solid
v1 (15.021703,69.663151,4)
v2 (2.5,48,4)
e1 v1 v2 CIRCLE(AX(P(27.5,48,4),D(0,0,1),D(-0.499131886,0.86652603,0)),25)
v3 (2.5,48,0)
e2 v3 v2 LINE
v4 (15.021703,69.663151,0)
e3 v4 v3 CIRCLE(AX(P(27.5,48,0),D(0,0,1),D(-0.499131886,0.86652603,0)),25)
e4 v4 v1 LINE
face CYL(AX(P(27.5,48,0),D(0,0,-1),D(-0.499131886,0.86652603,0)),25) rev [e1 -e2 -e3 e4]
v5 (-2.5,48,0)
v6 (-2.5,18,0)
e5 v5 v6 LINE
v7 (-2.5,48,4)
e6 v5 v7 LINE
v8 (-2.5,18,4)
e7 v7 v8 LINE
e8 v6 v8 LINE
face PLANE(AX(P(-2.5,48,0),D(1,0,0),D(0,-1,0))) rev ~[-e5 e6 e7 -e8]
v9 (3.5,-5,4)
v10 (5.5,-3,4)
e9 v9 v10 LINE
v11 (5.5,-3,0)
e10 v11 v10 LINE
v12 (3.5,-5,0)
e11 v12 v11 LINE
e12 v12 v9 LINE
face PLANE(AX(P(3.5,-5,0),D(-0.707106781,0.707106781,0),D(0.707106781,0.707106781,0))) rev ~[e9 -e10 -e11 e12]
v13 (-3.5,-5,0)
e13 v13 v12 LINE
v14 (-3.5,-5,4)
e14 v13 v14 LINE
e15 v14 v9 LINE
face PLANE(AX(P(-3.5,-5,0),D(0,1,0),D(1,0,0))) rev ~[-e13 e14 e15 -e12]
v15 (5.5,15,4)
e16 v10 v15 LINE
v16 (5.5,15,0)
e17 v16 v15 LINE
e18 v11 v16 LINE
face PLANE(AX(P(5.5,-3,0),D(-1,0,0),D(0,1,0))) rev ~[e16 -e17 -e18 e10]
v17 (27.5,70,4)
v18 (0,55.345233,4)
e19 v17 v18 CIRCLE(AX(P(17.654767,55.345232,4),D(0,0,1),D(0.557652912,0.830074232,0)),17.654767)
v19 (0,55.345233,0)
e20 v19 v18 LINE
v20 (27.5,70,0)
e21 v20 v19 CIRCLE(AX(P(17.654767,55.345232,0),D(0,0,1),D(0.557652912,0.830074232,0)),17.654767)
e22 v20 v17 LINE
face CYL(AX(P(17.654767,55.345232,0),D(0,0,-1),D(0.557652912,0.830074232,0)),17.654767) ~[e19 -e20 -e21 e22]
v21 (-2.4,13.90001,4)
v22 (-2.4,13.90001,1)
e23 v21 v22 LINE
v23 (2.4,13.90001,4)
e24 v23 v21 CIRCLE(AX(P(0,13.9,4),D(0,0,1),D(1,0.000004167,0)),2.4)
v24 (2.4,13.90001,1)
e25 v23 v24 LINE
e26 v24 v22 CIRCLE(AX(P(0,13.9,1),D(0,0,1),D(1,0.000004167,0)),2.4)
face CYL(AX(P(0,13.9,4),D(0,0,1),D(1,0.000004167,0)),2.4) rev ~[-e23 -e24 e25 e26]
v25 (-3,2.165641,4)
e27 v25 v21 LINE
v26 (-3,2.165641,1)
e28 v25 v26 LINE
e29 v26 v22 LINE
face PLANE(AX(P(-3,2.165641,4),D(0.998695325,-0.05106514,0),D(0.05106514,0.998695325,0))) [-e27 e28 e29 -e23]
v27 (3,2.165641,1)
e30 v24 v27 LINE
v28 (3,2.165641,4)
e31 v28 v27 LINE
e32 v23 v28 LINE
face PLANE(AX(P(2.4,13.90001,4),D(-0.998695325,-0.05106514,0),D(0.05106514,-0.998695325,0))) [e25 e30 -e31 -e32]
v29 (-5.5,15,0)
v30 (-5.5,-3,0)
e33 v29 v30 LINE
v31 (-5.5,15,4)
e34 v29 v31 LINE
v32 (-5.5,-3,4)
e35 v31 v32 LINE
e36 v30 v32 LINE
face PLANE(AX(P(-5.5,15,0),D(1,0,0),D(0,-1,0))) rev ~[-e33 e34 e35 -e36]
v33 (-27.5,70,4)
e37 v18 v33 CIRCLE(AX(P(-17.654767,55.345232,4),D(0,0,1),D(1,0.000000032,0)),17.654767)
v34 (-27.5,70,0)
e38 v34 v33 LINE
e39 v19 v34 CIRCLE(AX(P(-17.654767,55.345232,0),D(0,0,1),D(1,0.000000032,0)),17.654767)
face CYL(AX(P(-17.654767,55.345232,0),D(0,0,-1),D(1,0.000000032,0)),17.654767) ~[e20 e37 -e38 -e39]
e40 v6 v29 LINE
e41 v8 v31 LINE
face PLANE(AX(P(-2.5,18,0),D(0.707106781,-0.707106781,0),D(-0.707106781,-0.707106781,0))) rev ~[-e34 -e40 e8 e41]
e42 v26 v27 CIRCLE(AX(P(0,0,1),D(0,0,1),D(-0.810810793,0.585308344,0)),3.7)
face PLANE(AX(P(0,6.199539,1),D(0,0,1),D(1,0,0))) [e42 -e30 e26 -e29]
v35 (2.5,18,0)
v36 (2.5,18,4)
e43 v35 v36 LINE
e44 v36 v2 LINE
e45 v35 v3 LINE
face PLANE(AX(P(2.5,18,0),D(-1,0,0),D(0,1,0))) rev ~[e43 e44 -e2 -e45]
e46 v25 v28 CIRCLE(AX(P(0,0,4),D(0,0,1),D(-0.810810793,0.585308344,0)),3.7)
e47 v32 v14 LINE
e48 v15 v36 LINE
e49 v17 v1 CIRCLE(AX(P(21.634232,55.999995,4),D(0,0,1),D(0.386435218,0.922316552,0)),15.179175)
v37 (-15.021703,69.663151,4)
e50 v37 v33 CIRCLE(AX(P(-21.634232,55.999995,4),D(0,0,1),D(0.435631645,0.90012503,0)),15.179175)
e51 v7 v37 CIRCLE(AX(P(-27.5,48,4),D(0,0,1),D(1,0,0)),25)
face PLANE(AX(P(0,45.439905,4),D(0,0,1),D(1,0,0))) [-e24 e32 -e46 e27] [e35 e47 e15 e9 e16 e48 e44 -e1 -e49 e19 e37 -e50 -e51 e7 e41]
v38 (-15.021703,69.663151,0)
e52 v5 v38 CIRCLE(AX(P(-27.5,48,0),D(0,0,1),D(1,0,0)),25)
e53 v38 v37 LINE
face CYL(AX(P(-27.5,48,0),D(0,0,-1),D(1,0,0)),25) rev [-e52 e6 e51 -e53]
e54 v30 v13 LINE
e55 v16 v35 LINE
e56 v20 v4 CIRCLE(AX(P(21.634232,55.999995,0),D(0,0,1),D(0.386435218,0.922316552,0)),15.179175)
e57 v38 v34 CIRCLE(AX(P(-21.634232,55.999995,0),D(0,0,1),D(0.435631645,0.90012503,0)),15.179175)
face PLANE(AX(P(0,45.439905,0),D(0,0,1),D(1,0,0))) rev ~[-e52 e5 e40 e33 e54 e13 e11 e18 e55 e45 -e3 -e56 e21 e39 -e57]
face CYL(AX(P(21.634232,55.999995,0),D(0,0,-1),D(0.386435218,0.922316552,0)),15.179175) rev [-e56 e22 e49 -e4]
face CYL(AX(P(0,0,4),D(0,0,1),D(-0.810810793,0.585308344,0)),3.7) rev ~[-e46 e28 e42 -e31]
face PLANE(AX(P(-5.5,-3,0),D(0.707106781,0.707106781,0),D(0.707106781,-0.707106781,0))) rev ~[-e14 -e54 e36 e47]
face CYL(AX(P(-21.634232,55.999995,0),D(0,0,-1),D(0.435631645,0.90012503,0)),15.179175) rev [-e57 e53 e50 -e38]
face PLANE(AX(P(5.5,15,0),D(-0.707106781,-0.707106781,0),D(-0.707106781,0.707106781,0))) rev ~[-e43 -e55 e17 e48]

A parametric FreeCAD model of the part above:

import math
import FreeCAD as App
import Part
import Sketcher

V = App.Vector

doc = App.newDocument("Part")
body = doc.addObject("PartDesign::Body", "Body")

sketch1 = doc.addObject("Sketcher::SketchObject", "Sketch")
body.addObject(sketch1)
sketch1.AttachmentSupport = (doc.XY_Plane, [""])
sketch1.MapMode = "FlatFace"
sketch1.addGeometry([
    Part.LineSegment(V(2.5, 18, 0), V(2.5, 48, 0)),
    Part.ArcOfCircle(Part.Circle(V(27.5, 48, 0), V(0, 0, 1), 25), math.radians(120), math.radians(180)),
    Part.ArcOfCircle(Part.Circle(V(21.6, 56, 0), V(0, 0, 1), 15.2), math.radians(67), math.radians(116)),
    Part.ArcOfCircle(Part.Circle(V(17.7, 55.3, 0), V(0, 0, 1), 17.7), math.radians(56), math.radians(180)),
    Part.ArcOfCircle(Part.Circle(V(-17.7, 55.3, 0), V(0, 0, 1), 17.7), math.radians(0), math.radians(124)),
    Part.ArcOfCircle(Part.Circle(V(-21.6, 56, 0), V(0, 0, 1), 15.2), math.radians(64), math.radians(113)),
    Part.ArcOfCircle(Part.Circle(V(-27.5, 48, 0), V(0, 0, 1), 25), math.radians(0), math.radians(60)),
    Part.LineSegment(V(-2.5, 48, 0), V(-2.5, 18, 0)),
    Part.LineSegment(V(-2.5, 18, 0), V(-5.5, 15, 0)),
    Part.LineSegment(V(-5.5, 15, 0), V(-5.5, -3, 0)),
    Part.LineSegment(V(-5.5, -3, 0), V(-3.5, -5, 0)),
    Part.LineSegment(V(-3.5, -5, 0), V(3.5, -5, 0)),
    Part.LineSegment(V(3.5, -5, 0), V(5.5, -3, 0)),
    Part.LineSegment(V(5.5, -3, 0), V(5.5, 15, 0)),
    Part.LineSegment(V(5.5, 15, 0), V(2.5, 18, 0)),
], False)
sketch1.addConstraint([
    Sketcher.Constraint("Tangent", 0, 2, 1, 2),
    Sketcher.Constraint("Coincident", 1, 1, 2, 2),
    Sketcher.Constraint("Coincident", 2, 1, 3, 1),
    Sketcher.Constraint("Tangent", 3, 2, 4, 1),
    Sketcher.Constraint("Coincident", 4, 2, 5, 2),
    Sketcher.Constraint("Coincident", 5, 1, 6, 2),
    Sketcher.Constraint("Tangent", 6, 1, 7, 1),
    Sketcher.Constraint("Coincident", 7, 2, 8, 1),
    Sketcher.Constraint("Coincident", 8, 2, 9, 1),
    Sketcher.Constraint("Coincident", 9, 2, 10, 1),
    Sketcher.Constraint("Coincident", 10, 2, 11, 1),
    Sketcher.Constraint("Coincident", 11, 2, 12, 1),
    Sketcher.Constraint("Coincident", 12, 2, 13, 1),
    Sketcher.Constraint("Coincident", 13, 2, 14, 1),
    Sketcher.Constraint("Coincident", 14, 2, 0, 1),
    Sketcher.Constraint("Vertical", 0),
    Sketcher.Constraint("Vertical", 7),
    Sketcher.Constraint("Vertical", 9),
    Sketcher.Constraint("Horizontal", 11),
    Sketcher.Constraint("Vertical", 13),
    Sketcher.Constraint("Equal", 3, 4),
    Sketcher.Constraint("Equal", 2, 5),
    Sketcher.Constraint("Equal", 1, 6),
    Sketcher.Constraint("Symmetric", 3, 3, 4, 3, -2),
    Sketcher.Constraint("Symmetric", 2, 3, 5, 3, -2),
    Sketcher.Constraint("Symmetric", 1, 3, 6, 3, -2),
    Sketcher.Constraint("Symmetric", 9, 2, 12, 2, -2),
    Sketcher.Constraint("Perpendicular", 8, 10),
    Sketcher.Constraint("Perpendicular", 10, 12),
    Sketcher.Constraint("Perpendicular", 12, 14),
    Sketcher.Constraint("Horizontal", 8, 2, 13, 2),
    Sketcher.Constraint("Horizontal", 7, 2, 14, 2),
    Sketcher.Constraint("Vertical", 1, 3, 2, 1),
    Sketcher.Constraint("Radius", 1, 25.0),
    Sketcher.Constraint("DistanceX", 11, 1, 11, 2, 7.0),
    Sketcher.Constraint("DistanceY", 0, 1, 0, 2, 30.0),
    Sketcher.Constraint("DistanceY", 9, 2, 9, 1, 18.0),
    Sketcher.Constraint("DistanceY", -1, 1, 1, 3, 48.0),
    Sketcher.Constraint("DistanceY", -1, 1, 2, 1, 70.0),
    Sketcher.Constraint("DistanceY", -1, 1, 8, 2, 15.0),
    Sketcher.Constraint("DistanceY", 10, 2, -1, 1, 5.0),
    Sketcher.Constraint("Radius", 2, 15.179175),
    Sketcher.Constraint("Radius", 3, 17.654767),
    Sketcher.Constraint("DistanceX", 4, 3, 2, 3, 39.289),
])
pad1 = doc.addObject("PartDesign::Pad", "Pad")
body.addObject(pad1)
pad1.Profile = sketch1
pad1.Length = 4

sketch2 = doc.addObject("Sketcher::SketchObject", "Sketch001")
body.addObject(sketch2)
sketch2.AttachmentSupport = (doc.XY_Plane, [""])
sketch2.MapMode = "FlatFace"
sketch2.AttachmentOffset = App.Placement(V(0, 0, 4), App.Rotation())
sketch2.addGeometry([
    Part.ArcOfCircle(Part.Circle(V(0, 0, 0), V(0, 0, 1), 3.7), math.radians(144), math.radians(396)),
    Part.LineSegment(V(3, 2.2, 0), V(2.4, 13.9, 0)),
    Part.ArcOfCircle(Part.Circle(V(0, 13.9, 0), V(0, 0, 1), 2.4), math.radians(0), math.radians(180)),
    Part.LineSegment(V(-2.4, 13.9, 0), V(-3, 2.2, 0)),
], False)
sketch2.addConstraint([
    Sketcher.Constraint("Coincident", 0, 2, 1, 1),
    Sketcher.Constraint("Coincident", 1, 2, 2, 1),
    Sketcher.Constraint("Coincident", 2, 2, 3, 1),
    Sketcher.Constraint("Coincident", 3, 2, 0, 1),
    Sketcher.Constraint("Coincident", 0, 3, -1, 1),
    Sketcher.Constraint("Symmetric", 1, 2, 2, 2, -2),
    Sketcher.Constraint("Horizontal", 0, 2, 3, 2),
    Sketcher.Constraint("Radius", 0, 3.7),
    Sketcher.Constraint("Radius", 2, 2.4),
    Sketcher.Constraint("DistanceX", -1, 1, 0, 2, 3.0),
    Sketcher.Constraint("DistanceY", -1, 1, 2, 3, 13.9),
    Sketcher.Constraint("Distance", 1, 11.749699),
])
pocket1 = doc.addObject("PartDesign::Pocket", "Pocket")
body.addObject(pocket1)
pocket1.Profile = sketch2
pocket1.Length = 3

doc.recompute()
